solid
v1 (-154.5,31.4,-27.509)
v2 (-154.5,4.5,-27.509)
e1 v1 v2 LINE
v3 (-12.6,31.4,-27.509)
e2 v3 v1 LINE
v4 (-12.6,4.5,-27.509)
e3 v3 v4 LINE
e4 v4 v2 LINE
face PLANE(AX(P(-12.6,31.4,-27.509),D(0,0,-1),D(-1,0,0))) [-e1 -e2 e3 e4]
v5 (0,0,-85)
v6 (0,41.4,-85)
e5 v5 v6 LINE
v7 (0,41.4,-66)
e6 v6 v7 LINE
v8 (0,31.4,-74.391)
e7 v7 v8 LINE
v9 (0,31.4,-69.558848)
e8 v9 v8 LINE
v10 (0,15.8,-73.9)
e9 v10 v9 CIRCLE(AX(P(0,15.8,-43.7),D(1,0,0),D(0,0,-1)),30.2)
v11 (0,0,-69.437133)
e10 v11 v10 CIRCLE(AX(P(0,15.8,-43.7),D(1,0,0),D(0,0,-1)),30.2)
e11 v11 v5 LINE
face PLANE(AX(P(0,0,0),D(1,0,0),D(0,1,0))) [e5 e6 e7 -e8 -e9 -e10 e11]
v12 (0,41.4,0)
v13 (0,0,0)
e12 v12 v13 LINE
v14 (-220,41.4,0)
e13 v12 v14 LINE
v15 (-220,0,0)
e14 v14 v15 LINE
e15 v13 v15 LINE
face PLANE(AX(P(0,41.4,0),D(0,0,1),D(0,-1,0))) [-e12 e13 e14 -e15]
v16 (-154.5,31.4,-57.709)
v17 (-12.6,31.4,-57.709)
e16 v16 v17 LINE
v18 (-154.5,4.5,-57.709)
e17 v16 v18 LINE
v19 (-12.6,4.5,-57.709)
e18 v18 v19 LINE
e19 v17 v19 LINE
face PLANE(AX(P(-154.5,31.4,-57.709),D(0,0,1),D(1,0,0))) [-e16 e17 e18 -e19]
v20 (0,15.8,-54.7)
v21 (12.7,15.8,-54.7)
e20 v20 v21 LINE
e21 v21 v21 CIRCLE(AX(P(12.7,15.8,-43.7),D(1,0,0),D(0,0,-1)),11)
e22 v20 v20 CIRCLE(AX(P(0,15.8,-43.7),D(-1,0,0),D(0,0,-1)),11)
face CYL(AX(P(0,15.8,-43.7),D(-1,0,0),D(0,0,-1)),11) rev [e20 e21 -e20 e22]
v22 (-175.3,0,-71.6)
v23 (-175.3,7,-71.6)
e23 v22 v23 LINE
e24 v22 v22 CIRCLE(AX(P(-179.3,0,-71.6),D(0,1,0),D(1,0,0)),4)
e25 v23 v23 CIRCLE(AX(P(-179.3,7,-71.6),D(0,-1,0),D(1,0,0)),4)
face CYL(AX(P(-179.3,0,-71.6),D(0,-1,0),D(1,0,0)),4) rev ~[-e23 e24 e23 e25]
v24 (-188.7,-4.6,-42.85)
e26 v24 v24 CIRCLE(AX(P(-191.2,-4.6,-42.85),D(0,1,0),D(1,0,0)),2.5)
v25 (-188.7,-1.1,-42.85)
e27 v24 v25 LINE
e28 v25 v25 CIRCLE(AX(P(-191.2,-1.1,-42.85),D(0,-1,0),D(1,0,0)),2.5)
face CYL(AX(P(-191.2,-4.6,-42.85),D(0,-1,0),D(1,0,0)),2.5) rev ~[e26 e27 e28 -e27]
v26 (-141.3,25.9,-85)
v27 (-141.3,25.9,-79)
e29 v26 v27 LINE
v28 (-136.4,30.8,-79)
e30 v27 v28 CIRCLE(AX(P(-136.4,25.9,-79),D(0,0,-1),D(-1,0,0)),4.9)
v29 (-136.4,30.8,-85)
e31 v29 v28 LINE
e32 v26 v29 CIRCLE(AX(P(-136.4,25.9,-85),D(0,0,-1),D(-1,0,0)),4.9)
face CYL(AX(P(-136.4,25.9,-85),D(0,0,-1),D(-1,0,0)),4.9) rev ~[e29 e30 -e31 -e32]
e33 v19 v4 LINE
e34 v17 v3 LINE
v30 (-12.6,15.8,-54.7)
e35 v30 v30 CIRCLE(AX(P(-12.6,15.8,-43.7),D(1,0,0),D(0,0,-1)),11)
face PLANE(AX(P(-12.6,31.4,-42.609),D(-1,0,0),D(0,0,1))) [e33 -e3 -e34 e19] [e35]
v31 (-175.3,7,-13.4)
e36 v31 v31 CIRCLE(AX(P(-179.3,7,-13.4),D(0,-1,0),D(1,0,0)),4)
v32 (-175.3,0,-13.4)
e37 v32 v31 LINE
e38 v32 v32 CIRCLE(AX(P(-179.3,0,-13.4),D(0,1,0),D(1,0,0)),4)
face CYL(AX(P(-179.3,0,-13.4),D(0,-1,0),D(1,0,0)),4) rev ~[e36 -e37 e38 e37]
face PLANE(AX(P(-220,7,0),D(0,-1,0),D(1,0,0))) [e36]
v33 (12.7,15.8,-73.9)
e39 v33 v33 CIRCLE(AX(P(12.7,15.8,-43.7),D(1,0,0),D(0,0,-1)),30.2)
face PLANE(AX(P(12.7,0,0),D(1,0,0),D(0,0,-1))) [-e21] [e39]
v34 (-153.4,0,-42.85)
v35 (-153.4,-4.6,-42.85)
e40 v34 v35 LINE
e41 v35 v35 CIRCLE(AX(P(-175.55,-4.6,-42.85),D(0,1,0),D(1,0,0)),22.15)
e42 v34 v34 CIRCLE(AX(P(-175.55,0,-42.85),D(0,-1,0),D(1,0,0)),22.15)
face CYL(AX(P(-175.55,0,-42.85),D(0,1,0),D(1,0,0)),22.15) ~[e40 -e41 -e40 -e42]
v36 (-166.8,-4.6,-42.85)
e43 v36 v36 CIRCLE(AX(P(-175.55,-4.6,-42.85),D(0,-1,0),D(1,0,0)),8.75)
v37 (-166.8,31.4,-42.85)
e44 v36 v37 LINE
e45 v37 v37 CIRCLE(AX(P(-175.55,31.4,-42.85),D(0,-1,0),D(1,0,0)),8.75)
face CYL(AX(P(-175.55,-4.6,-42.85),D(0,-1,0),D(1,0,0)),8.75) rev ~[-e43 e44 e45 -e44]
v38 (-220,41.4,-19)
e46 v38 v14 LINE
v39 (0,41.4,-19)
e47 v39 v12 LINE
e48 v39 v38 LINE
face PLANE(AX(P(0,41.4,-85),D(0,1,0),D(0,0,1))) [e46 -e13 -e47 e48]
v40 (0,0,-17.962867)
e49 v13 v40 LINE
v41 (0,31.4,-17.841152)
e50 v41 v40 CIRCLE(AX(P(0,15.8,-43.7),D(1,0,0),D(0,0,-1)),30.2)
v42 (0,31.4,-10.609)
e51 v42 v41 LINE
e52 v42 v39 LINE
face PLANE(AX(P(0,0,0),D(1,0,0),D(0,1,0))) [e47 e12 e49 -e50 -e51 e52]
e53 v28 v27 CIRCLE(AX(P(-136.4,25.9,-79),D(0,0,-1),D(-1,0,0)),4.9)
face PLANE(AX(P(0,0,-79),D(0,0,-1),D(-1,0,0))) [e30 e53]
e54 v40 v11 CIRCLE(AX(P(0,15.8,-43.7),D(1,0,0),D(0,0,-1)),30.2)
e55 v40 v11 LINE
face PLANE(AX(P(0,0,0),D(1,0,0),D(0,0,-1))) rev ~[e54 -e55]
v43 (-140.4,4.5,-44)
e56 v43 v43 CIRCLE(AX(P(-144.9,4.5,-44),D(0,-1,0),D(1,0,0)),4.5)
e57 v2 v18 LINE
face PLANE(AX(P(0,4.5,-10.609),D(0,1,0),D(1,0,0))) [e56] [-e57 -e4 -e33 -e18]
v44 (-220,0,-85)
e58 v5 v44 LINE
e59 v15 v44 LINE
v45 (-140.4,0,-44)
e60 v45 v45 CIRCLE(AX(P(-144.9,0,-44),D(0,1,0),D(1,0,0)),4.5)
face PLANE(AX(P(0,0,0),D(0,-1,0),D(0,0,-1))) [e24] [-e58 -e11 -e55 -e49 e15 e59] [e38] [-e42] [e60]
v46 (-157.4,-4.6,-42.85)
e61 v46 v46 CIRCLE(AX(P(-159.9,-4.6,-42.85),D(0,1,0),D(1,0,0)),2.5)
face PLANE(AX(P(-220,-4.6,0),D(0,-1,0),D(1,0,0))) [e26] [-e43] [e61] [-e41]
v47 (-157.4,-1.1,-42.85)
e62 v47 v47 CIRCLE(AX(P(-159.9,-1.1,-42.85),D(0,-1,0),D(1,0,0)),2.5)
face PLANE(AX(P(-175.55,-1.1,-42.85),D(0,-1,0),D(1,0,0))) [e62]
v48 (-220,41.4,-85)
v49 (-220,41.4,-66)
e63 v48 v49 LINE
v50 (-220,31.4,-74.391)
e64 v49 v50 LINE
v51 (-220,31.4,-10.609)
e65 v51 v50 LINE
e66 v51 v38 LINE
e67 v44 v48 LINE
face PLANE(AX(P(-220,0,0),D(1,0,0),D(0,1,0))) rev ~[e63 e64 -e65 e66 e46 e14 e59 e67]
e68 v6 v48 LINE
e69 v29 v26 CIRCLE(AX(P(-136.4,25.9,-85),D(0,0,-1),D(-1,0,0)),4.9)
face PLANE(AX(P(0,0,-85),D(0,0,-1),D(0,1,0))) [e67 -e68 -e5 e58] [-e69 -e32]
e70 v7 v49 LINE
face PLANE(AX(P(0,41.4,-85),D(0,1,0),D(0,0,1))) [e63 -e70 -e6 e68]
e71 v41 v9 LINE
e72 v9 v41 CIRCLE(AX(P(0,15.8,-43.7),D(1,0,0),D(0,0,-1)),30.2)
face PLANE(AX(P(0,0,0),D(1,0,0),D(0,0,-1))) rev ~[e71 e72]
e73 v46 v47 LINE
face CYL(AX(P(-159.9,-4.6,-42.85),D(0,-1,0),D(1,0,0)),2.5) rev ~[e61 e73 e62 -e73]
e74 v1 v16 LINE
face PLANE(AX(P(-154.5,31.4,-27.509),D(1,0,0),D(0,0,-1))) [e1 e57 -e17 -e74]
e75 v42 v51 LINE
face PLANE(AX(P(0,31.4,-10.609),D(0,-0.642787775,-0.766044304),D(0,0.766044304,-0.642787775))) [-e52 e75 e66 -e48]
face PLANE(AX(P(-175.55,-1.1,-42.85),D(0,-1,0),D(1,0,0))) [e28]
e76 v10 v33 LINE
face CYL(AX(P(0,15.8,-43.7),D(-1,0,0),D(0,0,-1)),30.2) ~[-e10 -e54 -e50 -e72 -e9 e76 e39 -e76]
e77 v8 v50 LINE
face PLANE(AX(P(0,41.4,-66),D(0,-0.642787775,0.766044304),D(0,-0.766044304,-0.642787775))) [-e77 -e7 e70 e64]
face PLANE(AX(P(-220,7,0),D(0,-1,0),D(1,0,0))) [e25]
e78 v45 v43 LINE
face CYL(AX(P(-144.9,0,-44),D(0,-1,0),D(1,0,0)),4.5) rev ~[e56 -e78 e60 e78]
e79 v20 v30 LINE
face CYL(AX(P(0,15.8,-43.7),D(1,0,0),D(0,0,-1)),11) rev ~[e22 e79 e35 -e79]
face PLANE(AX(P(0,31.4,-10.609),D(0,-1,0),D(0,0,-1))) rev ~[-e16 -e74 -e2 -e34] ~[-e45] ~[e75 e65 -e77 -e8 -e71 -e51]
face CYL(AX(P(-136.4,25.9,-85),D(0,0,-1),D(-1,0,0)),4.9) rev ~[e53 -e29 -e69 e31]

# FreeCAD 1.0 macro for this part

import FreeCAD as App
import Part
import Sketcher

V = App.Vector
Q = App.Units.Quantity


def add_polygon(sketch, points):
    """Adds a closed chain of lines whose ends are joined by coincident constraints."""
    first, n = sketch.GeometryCount, len(points)
    for a, b in zip(points, points[1:] + points[:1]):
        sketch.addGeometry(Part.LineSegment(App.Vector(*a, 0), App.Vector(*b, 0)), False)
    for i in range(n):
        sketch.addConstraint(Sketcher.Constraint("Coincident", first + i, 2, first + (i + 1) % n, 1))

doc = App.newDocument("Part")
body = doc.addObject("PartDesign::Body", "Body")

# Sketch on YZ plane
sketch1 = body.newObject("Sketcher::SketchObject", "Sketch")
sketch1.AttachmentSupport = (doc.getObject("YZ_Plane"), [""])
sketch1.MapMode = "FlatFace"
add_polygon(sketch1, [(41, 0), (0, 0), (0, -85), (41, -85)])  # lines 0-3
sketch1.addConstraint([
    Sketcher.Constraint("Horizontal", 0),
    Sketcher.Constraint("Vertical", 1),
    Sketcher.Constraint("Horizontal", 2),
    Sketcher.Constraint("Vertical", 3),
    Sketcher.Constraint("Coincident", 0, 2, -1, 1),
    Sketcher.Constraint("DistanceY", 1, 2, 1, 1, Q("85 mm")),
    Sketcher.Constraint("DistanceX", 0, 2, 0, 1, Q("41.4 mm")),
])
pad1 = body.newObject("PartDesign::Pad", "Pad")
pad1.Profile = sketch1
pad1.Length = 220
pad1.Reversed = True

# Sketch on YZ plane
sketch2 = body.newObject("Sketcher::SketchObject", "Sketch001")
sketch2.AttachmentSupport = (doc.getObject("YZ_Plane"), [""])
sketch2.MapMode = "FlatFace"
add_polygon(sketch2, [(41, -19), (31, -11), (31, -74), (41, -66)])  # lines 0-3
sketch2.addConstraint([
    Sketcher.Constraint("Vertical", 1),
    Sketcher.Constraint("Vertical", 3),
    Sketcher.Constraint("Equal", 0, 2),
    Sketcher.Constraint("DistanceY", 3, 2, -1, 1, Q("19 mm")),
    Sketcher.Constraint("DistanceX", 1, 2, 2, 2, Q("10 mm")),
    Sketcher.Constraint("DistanceY", 3, 1, 3, 2, Q("47 mm")),
    Sketcher.Constraint("Angle", 0, Q("140 deg")),
    Sketcher.Constraint("DistanceX", -1, 1, 0, 2, Q("31.4 mm")),
])
pocket1 = body.newObject("PartDesign::Pocket", "Pocket")
pocket1.Profile = sketch2
pocket1.Length = 301.25

# Sketch on XZ plane
sketch3 = body.newObject("Sketcher::SketchObject", "Sketch002")
sketch3.AttachmentSupport = (doc.getObject("XZ_Plane"), [""])
sketch3.MapMode = "FlatFace"
sketch3.AttachmentOffset = App.Placement(V(0, 0, -31.4), App.Rotation())
add_polygon(sketch3, [(-13, -28), (-13, -58), (-154, -58), (-154, -28)])  # lines 0-3
sketch3.addConstraint([
    Sketcher.Constraint("Vertical", 0),
    Sketcher.Constraint("Horizontal", 1),
    Sketcher.Constraint("Vertical", 2),
    Sketcher.Constraint("Horizontal", 3),
    Sketcher.Constraint("DistanceX", 1, 2, 1, 1, Q("141.9 mm")),
    Sketcher.Constraint("DistanceY", 0, 2, 0, 1, Q("30.2 mm")),
    Sketcher.Constraint("DistanceX", 0, 2, -1, 1, Q("12.6 mm")),
    Sketcher.Constraint("DistanceY", 0, 2, -1, 1, Q("57.709 mm")),
])
pocket2 = body.newObject("PartDesign::Pocket", "Pocket001")
pocket2.Profile = sketch3
pocket2.Length = 26.9
pocket2.Reversed = True

# Sketch on YZ plane
sketch4 = body.newObject("Sketcher::SketchObject", "Sketch003")
sketch4.AttachmentSupport = (doc.getObject("YZ_Plane"), [""])
sketch4.MapMode = "FlatFace"
sketch4.addGeometry(Part.Circle(V(16, -44, 0), V(0, 0, 1), 11), False)
sketch4.addConstraint([
    Sketcher.Constraint("Diameter", 0, Q("22 mm")),
    Sketcher.Constraint("DistanceX", -1, 1, 0, 3, Q("15.8 mm")),
    Sketcher.Constraint("DistanceY", 0, 3, -1, 1, Q("43.7 mm")),
])
pocket3 = body.newObject("PartDesign::Pocket", "Pocket002")
pocket3.Profile = sketch4
pocket3.Length = 91.9

# Sketch on YZ plane
sketch5 = body.newObject("Sketcher::SketchObject", "Sketch004")
sketch5.AttachmentSupport = (doc.getObject("YZ_Plane"), [""])
sketch5.MapMode = "FlatFace"
sketch5.addGeometry([
    Part.Circle(V(16, -44, 0), V(0, 0, 1), 30),
    Part.Circle(V(16, -44, 0), V(0, 0, 1), 11),
], False)
sketch5.addConstraint([
    Sketcher.Constraint("Coincident", 1, 3, 0, 3),
    Sketcher.Constraint("Diameter", 0, Q("60.4 mm")),
    Sketcher.Constraint("Diameter", 1, Q("22 mm")),
    Sketcher.Constraint("DistanceX", -1, 1, 0, 3, Q("15.8 mm")),
    Sketcher.Constraint("DistanceY", 0, 3, -1, 1, Q("43.7 mm")),
])
pad2 = body.newObject("PartDesign::Pad", "Pad001")
pad2.Profile = sketch5
pad2.Length = 12.7

# Sketch on XY plane
sketch6 = body.newObject("Sketcher::SketchObject", "Sketch005")
sketch6.AttachmentSupport = (doc.getObject("XY_Plane"), [""])
sketch6.MapMode = "FlatFace"
sketch6.AttachmentOffset = App.Placement(V(0, 0, -85), App.Rotation())
sketch6.addGeometry(Part.Circle(V(-136.4, 25.9, 0), V(0, 0, 1), 4.9), False)
sketch6.addConstraint([
    Sketcher.Constraint("Diameter", 0, Q("9.8 mm")),
    Sketcher.Constraint("DistanceX", 0, 3, -1, 1, Q("136.4 mm")),
    Sketcher.Constraint("DistanceY", -1, 1, 0, 3, Q("25.9 mm")),
])
pocket4 = body.newObject("PartDesign::Pocket", "Pocket003")
pocket4.Profile = sketch6
pocket4.Length = 6
pocket4.Reversed = True

# Sketch on XZ plane
sketch7 = body.newObject("Sketcher::SketchObject", "Sketch006")
sketch7.AttachmentSupport = (doc.getObject("XZ_Plane"), [""])
sketch7.MapMode = "FlatFace"
sketch7.addGeometry(Part.Circle(V(-176, -43, 0), V(0, 0, 1), 22), False)
sketch7.addConstraint([
    Sketcher.Constraint("Diameter", 0, Q("44.3 mm")),
    Sketcher.Constraint("DistanceX", 0, 3, -1, 1, Q("175.55 mm")),
    Sketcher.Constraint("DistanceY", 0, 3, -1, 1, Q("42.85 mm")),
])
pad3 = body.newObject("PartDesign::Pad", "Pad002")
pad3.Profile = sketch7
pad3.Length = 4.6

# Sketch on XZ plane
sketch8 = body.newObject("Sketcher::SketchObject", "Sketch007")
sketch8.AttachmentSupport = (doc.getObject("XZ_Plane"), [""])
sketch8.MapMode = "FlatFace"
sketch8.AttachmentOffset = App.Placement(V(0, 0, 4.6), App.Rotation())
sketch8.addGeometry(Part.Circle(V(-176, -43, 0), V(0, 0, 1), 9), False)
sketch8.addConstraint([
    Sketcher.Constraint("Diameter", 0, Q("17.5 mm")),
    Sketcher.Constraint("DistanceX", 0, 3, -1, 1, Q("175.55 mm")),
    Sketcher.Constraint("DistanceY", 0, 3, -1, 1, Q("42.85 mm")),
])
pocket5 = body.newObject("PartDesign::Pocket", "Pocket004")
pocket5.Profile = sketch8
pocket5.Length = 310.85

# Sketch on XZ plane
sketch9 = body.newObject("Sketcher::SketchObject", "Sketch008")
sketch9.AttachmentSupport = (doc.getObject("XZ_Plane"), [""])
sketch9.MapMode = "FlatFace"
sketch9.AttachmentOffset = App.Placement(V(0, 0, 4.6), App.Rotation())
sketch9.addGeometry([
    Part.Circle(V(-191.2, -42.9, 0), V(0, 0, 1), 2.5),
    Part.Circle(V(-159.9, -42.9, 0), V(0, 0, 1), 2.5),
], False)
sketch9.addConstraint([
    Sketcher.Constraint("Equal", 0, 1),
    Sketcher.Constraint("Horizontal", 0, 3, 1, 3),
    Sketcher.Constraint("Diameter", 0, Q("5 mm")),
    Sketcher.Constraint("DistanceX", 0, 3, -1, 1, Q("191.2 mm")),
    Sketcher.Constraint("DistanceX", 1, 3, -1, 1, Q("159.9 mm")),
    Sketcher.Constraint("DistanceY", 0, 3, -1, 1, Q("42.85 mm")),
])
pocket6 = body.newObject("PartDesign::Pocket", "Pocket005")
pocket6.Profile = sketch9
pocket6.Length = 3.5

# Sketch on XZ plane
sketch10 = body.newObject("Sketcher::SketchObject", "Sketch009")
sketch10.AttachmentSupport = (doc.getObject("XZ_Plane"), [""])
sketch10.MapMode = "FlatFace"
sketch10.addGeometry([
    Part.Circle(V(-179.3, -13.4, 0), V(0, 0, 1), 4),
    Part.Circle(V(-144.9, -44, 0), V(0, 0, 1), 4.5),
    Part.Circle(V(-179.3, -71.6, 0), V(0, 0, 1), 4),
], False)
sketch10.addConstraint([
    Sketcher.Constraint("Equal", 0, 2),
    Sketcher.Constraint("Vertical", 0, 3, 2, 3),
    Sketcher.Constraint("Diameter", 0, Q("8 mm")),
    Sketcher.Constraint("Diameter", 1, Q("9 mm")),
    Sketcher.Constraint("DistanceY", 1, 3, -1, 1, Q("44 mm")),
    Sketcher.Constraint("DistanceX", 0, 3, -1, 1, Q("179.3 mm")),
    Sketcher.Constraint("DistanceY", 0, 3, -1, 1, Q("13.4 mm")),
    Sketcher.Constraint("DistanceX", 1, 3, -1, 1, Q("144.9 mm")),
    Sketcher.Constraint("DistanceY", 2, 3, -1, 1, Q("71.6 mm")),
])
pocket7 = body.newObject("PartDesign::Pocket", "Pocket006")
pocket7.Profile = sketch10
pocket7.Length = 7

doc.recompute()
